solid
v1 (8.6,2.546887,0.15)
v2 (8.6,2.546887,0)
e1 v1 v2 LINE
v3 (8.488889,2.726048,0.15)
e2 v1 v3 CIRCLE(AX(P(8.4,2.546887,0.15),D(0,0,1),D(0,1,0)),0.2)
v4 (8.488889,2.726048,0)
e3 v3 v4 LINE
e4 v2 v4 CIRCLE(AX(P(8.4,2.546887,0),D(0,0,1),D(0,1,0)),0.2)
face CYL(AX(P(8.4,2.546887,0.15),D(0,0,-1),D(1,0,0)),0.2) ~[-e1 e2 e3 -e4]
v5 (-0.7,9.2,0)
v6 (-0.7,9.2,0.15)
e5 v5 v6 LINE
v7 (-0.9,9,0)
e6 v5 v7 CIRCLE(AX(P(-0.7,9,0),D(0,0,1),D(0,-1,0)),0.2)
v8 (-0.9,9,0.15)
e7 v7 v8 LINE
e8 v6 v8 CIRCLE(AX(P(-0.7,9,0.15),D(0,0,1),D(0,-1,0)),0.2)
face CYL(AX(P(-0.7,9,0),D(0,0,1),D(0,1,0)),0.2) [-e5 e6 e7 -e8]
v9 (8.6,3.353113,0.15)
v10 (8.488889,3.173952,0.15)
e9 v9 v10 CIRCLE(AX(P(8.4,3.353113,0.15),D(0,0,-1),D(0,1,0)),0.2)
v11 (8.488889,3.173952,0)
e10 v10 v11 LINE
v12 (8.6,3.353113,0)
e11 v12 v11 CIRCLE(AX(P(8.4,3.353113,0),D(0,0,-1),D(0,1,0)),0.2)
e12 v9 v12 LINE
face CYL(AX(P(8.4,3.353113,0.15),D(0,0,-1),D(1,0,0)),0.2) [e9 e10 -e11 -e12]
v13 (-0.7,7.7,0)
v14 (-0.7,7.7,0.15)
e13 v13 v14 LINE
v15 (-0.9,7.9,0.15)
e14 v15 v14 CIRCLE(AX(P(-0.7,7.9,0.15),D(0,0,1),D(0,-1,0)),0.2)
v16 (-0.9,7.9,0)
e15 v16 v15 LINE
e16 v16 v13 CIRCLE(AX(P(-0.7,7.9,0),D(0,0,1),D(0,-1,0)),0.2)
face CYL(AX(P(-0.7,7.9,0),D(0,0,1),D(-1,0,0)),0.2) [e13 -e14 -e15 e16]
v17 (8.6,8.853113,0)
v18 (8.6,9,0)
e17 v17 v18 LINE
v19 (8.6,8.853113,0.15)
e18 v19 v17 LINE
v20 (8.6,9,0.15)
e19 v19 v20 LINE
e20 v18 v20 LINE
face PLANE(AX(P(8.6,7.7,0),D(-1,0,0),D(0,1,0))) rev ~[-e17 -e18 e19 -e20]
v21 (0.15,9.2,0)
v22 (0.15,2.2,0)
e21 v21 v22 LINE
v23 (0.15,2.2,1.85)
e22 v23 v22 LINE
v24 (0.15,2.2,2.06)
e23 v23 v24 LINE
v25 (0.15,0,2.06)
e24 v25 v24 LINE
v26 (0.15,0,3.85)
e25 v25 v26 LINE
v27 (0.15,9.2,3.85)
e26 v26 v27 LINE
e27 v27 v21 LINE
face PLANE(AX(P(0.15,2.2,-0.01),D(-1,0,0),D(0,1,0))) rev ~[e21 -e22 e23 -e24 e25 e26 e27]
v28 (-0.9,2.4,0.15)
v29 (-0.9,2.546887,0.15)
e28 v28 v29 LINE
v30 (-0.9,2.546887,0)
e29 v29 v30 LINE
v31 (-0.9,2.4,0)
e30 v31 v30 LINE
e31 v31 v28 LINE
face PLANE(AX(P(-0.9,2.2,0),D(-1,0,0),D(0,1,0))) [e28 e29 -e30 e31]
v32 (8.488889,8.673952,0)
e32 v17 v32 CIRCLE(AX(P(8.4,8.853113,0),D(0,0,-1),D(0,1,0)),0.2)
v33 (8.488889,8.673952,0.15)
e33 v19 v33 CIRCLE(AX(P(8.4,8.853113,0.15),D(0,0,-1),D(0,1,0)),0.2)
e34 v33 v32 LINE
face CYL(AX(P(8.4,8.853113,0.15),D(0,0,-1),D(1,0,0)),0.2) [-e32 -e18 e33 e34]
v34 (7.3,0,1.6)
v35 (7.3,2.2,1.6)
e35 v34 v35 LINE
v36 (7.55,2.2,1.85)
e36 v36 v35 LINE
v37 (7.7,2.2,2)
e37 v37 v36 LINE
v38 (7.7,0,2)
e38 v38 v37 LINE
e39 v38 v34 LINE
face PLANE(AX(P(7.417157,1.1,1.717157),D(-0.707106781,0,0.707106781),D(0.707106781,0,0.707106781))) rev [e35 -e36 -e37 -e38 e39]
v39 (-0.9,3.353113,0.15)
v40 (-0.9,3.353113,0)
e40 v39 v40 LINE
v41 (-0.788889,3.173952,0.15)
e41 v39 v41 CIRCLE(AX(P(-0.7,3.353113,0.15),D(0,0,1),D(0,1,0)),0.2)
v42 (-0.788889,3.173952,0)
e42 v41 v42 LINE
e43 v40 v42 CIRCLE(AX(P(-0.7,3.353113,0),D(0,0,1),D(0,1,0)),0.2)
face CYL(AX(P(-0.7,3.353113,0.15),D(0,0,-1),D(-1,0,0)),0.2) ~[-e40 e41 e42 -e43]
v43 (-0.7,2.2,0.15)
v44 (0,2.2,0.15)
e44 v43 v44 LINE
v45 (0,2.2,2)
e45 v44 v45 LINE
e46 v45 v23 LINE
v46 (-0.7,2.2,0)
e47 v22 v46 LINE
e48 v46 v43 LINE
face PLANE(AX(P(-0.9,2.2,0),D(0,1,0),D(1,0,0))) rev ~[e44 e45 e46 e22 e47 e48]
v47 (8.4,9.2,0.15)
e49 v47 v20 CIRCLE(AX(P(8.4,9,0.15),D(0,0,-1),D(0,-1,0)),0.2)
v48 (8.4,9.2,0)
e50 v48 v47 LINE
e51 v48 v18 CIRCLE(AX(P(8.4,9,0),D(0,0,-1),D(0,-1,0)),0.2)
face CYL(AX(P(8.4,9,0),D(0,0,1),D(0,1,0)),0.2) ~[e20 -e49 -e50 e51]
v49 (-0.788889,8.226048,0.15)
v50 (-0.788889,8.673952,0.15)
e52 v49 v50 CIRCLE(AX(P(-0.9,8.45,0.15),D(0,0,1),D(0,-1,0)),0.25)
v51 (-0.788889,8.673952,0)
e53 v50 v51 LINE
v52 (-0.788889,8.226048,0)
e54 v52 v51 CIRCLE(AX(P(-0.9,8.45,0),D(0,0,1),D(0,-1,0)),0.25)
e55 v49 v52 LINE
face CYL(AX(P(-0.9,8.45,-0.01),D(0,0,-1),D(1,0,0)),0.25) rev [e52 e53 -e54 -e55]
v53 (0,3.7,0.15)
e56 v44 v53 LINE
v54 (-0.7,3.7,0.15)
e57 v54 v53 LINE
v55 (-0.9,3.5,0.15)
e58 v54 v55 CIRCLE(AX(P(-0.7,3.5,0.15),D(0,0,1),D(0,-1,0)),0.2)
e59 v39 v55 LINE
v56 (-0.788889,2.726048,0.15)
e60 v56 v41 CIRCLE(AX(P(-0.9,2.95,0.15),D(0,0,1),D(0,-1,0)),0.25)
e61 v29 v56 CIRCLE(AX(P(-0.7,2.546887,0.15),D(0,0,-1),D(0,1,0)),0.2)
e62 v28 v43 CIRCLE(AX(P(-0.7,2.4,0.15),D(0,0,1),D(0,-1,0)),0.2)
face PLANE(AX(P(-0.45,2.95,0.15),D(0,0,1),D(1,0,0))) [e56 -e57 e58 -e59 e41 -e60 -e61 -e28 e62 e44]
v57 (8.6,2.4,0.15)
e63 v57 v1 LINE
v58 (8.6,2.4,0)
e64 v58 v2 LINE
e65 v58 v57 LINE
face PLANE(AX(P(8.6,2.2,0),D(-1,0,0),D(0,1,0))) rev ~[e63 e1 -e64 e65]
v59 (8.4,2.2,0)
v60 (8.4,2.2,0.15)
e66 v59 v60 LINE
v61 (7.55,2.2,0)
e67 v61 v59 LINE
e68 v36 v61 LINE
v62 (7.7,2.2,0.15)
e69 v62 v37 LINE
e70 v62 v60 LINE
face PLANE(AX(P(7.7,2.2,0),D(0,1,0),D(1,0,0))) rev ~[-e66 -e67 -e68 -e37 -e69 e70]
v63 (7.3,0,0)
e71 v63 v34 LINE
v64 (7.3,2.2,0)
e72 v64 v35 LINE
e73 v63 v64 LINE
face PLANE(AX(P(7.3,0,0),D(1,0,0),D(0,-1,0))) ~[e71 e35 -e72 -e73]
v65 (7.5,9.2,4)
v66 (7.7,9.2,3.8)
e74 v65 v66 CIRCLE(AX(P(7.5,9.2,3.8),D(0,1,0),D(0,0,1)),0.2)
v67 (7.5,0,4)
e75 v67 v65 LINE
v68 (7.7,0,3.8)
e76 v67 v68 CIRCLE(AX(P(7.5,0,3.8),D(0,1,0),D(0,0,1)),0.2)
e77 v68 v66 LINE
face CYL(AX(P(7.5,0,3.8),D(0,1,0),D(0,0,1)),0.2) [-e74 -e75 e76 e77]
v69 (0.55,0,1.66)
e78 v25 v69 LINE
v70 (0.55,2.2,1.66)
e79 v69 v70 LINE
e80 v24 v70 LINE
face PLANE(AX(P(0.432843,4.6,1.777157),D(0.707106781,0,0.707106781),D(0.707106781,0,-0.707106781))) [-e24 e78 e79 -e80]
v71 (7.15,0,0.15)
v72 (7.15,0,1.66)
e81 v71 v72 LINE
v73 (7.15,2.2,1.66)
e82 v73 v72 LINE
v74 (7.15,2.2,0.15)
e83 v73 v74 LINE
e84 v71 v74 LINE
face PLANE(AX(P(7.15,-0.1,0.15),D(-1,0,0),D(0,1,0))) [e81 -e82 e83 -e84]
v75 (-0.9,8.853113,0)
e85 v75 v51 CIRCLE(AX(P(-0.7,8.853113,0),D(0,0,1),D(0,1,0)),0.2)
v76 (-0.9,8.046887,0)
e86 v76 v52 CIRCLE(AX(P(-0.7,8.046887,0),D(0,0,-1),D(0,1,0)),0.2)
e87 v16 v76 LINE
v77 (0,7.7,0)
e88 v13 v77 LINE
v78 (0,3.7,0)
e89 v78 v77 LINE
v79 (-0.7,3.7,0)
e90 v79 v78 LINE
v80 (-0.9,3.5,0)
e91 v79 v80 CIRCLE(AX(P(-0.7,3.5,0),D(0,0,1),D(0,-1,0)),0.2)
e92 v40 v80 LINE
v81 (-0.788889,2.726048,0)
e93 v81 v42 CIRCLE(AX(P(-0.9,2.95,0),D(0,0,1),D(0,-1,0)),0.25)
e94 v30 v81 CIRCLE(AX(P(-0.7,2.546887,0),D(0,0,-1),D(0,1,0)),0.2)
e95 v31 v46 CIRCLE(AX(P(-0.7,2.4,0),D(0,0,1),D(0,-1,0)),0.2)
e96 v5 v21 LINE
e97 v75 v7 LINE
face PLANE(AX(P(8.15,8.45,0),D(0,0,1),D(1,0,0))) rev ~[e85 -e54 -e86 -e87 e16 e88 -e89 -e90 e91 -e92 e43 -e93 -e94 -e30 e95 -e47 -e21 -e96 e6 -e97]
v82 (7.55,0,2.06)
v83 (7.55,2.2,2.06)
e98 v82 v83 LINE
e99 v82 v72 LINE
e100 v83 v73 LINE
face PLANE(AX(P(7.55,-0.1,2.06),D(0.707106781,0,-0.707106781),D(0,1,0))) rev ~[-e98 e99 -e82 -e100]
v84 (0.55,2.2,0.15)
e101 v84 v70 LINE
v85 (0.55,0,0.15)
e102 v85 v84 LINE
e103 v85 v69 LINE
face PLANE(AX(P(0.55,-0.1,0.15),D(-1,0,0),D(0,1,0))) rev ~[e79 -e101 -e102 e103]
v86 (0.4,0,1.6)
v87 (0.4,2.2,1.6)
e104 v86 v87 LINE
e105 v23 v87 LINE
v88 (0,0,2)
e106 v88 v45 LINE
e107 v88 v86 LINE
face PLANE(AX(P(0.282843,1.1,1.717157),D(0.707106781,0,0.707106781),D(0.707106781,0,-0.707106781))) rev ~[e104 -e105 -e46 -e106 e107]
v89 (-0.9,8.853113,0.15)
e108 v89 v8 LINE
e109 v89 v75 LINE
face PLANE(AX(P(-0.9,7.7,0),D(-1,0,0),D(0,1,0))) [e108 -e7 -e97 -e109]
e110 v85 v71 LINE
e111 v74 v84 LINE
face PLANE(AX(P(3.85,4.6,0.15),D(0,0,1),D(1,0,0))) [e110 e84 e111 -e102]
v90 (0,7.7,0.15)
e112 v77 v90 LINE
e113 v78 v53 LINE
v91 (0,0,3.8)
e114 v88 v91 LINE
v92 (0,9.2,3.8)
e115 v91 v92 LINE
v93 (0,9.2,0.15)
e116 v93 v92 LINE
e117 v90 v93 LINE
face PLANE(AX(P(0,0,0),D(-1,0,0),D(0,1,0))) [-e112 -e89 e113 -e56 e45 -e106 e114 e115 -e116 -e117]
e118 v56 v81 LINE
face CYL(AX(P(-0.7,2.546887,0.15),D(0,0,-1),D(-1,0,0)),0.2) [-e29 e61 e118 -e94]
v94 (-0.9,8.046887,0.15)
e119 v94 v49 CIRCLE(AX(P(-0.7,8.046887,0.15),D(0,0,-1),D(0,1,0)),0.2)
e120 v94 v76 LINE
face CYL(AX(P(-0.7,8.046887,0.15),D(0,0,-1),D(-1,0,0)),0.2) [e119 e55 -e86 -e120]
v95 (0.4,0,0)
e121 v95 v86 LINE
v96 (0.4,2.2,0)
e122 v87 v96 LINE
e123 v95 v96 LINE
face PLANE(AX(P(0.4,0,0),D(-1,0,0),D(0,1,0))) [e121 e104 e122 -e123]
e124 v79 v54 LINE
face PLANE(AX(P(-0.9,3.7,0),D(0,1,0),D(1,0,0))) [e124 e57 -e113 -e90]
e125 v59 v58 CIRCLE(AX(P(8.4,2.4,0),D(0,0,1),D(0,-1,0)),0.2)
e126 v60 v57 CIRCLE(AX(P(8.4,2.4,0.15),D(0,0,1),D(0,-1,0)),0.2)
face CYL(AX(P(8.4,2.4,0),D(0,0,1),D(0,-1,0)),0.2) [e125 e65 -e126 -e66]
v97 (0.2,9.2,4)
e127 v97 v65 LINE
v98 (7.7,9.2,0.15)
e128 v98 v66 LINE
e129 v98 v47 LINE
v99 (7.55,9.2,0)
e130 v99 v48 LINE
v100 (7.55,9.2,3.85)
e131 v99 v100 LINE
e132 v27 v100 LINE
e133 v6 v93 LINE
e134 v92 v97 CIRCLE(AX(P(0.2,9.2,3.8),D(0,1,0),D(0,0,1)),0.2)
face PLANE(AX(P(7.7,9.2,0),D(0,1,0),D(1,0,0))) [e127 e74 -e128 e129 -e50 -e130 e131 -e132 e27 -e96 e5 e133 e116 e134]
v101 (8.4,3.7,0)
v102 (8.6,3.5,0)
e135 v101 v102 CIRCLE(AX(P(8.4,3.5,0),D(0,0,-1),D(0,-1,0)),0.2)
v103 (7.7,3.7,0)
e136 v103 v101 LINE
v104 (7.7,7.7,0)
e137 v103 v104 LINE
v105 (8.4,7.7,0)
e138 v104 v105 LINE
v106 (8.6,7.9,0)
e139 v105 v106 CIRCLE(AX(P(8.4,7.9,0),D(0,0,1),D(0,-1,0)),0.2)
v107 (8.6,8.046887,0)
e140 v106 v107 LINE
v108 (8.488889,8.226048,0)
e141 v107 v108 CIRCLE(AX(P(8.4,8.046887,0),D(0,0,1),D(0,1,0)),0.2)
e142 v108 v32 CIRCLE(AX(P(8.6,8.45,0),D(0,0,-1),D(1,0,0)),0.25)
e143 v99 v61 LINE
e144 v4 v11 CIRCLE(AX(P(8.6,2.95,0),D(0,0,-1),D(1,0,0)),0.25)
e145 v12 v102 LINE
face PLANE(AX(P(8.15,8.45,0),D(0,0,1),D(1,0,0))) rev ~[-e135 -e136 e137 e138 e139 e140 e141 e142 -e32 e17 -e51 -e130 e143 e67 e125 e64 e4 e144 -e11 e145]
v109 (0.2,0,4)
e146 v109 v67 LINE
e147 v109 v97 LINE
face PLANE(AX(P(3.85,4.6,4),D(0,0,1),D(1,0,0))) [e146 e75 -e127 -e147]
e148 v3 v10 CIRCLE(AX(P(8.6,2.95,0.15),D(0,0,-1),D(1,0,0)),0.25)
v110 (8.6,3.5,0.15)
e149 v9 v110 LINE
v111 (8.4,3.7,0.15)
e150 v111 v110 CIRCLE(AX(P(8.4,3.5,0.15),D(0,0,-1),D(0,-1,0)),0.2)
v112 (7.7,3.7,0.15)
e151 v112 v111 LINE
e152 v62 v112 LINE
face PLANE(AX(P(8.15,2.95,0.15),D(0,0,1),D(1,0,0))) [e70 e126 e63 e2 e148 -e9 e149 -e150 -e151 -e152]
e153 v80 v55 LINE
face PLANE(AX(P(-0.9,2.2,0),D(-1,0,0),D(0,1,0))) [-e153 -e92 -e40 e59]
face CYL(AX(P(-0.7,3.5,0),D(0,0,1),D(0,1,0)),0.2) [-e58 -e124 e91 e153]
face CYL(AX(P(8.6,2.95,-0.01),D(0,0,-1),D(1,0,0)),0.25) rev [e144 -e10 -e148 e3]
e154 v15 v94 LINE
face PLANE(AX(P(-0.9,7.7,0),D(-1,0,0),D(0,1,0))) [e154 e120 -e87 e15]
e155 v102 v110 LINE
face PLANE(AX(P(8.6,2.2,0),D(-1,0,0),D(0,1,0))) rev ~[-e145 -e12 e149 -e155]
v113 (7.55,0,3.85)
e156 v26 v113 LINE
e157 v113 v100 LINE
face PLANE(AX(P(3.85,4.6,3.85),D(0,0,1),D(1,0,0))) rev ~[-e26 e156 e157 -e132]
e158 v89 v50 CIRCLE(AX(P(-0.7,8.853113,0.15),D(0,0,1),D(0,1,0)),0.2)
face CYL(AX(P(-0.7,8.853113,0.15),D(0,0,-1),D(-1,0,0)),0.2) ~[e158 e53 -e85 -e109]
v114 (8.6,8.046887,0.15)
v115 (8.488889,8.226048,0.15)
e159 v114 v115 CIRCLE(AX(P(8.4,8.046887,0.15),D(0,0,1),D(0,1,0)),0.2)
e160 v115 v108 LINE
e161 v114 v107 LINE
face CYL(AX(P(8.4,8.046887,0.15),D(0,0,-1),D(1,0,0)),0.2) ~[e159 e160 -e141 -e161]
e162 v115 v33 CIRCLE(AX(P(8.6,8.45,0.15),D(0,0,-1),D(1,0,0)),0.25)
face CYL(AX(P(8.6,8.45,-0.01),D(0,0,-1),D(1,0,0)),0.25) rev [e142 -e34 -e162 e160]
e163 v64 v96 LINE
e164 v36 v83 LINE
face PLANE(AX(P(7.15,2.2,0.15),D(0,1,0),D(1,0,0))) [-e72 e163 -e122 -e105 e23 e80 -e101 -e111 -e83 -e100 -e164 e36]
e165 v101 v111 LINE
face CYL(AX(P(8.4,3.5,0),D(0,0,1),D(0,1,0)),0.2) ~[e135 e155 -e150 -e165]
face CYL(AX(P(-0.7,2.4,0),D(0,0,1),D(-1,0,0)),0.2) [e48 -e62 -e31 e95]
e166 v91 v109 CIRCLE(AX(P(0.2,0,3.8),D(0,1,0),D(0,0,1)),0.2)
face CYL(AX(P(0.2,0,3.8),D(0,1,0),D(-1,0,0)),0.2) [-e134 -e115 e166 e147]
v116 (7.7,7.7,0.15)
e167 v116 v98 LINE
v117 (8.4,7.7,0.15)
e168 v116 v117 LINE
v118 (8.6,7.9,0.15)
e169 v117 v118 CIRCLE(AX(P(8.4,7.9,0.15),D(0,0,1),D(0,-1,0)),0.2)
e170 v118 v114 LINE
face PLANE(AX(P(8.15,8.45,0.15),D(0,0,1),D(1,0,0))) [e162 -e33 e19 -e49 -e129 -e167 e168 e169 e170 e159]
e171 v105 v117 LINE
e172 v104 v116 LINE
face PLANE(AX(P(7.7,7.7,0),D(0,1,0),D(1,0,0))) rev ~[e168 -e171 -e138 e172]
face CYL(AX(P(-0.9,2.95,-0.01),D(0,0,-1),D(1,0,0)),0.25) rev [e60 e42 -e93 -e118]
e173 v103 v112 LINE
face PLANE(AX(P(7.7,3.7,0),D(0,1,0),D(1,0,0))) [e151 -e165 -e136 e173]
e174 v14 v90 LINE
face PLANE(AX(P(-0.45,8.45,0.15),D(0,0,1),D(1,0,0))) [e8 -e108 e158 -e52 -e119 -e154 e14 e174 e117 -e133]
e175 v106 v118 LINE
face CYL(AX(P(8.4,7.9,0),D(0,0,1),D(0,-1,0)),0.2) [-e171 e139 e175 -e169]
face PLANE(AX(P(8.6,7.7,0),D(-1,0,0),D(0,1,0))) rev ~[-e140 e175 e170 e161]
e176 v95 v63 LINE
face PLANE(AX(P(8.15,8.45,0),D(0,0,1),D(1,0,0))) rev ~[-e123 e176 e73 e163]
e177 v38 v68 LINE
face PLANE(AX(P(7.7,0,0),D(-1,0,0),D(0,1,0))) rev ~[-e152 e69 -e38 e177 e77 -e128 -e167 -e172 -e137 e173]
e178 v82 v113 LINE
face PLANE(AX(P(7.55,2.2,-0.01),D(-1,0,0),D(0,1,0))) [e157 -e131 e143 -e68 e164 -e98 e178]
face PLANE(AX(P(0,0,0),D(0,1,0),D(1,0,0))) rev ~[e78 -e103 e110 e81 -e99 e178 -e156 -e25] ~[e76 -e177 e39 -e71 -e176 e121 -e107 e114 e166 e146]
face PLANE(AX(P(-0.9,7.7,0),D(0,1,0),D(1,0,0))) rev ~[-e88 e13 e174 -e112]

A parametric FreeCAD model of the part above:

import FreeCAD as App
import Part
import Sketcher


def edges_at(feature, points):
    """Names of the edges that pass closest to the given points."""
    edges = feature.Shape.Edges
    near = lambda p: min(range(len(edges)), key=lambda i: edges[i].distToShape(Part.Vertex(*p))[0])
    return sorted({f"Edge{near(p) + 1}" for p in points})

doc = App.newDocument("Part")
params = doc.addObject("Spreadsheet::Sheet", "Params")
for row, (alias, value) in enumerate([
    ("sketch1_height", "7 mm"),
    ("sketch1_width", "7.4 mm"),
    ("pad1_length", "0.2 mm"),
    ("sketch2_width", "0.8 mm"),
    ("sketch2_height", "9.4 mm"),
    ("pad2_length", "0.8 mm"),
    ("sketch3_width", "0.4 mm"),
    ("sketch3_height", "2.3 mm"),
    ("pad3_length", "1.91 mm"),
    ("sketch4_width", "0.8 mm"),
    ("sketch4_height", "9.4 mm"),
    ("pad4_length", "0.8 mm"),
    ("sketch5_width", "0.4 mm"),
    ("sketch5_height", "2.3 mm"),
    ("pad5_length", "1.91 mm"),
    ("sketch6_width", "7.4 mm"),
    ("sketch6_height", "9.4 mm"),
    ("pad6_length", "3.7 mm"),
    ("sketch7_diameter", "0.5 mm"),
    ("pad7_length", "0.17 mm"),
    ("sketch8_width", "0.9 mm"),
    ("sketch8_height", "1.5 mm"),
    ("pad8_length", "0.15 mm"),
    ("fillet_radius", "0.2 mm"),
    ("sketch9_diameter", "0.5 mm"),
    ("pad9_length", "0.17 mm"),
    ("sketch10_width", "0.9 mm"),
    ("sketch10_height", "1.5 mm"),
    ("pad10_length", "0.15 mm"),
    ("fillet2_radius", "0.2 mm"),
    ("sketch11_diameter", "0.5 mm"),
    ("pad11_length", "0.17 mm"),
    ("sketch12_width", "0.9 mm"),
    ("sketch12_height", "1.5 mm"),
    ("pad12_length", "0.15 mm"),
    ("fillet3_radius", "0.2 mm"),
    ("sketch13_diameter", "0.5 mm"),
    ("pad13_length", "0.17 mm"),
    ("sketch14_width", "0.9 mm"),
    ("sketch14_height", "1.5 mm"),
    ("pad14_length", "0.15 mm"),
    ("fillet4_radius", "0.2 mm"),
    ("sketch15_width", "0.8 mm"),
    ("sketch15_height", "2.2 mm"),
    ("pad15_length", "0.8 mm"),
    ("sketch16_width", "0.4 mm"),
    ("sketch16_height", "2.2 mm"),
    ("pad16_length", "2 mm"),
    ("sketch17_width", "0.8 mm"),
    ("sketch17_height", "2.2 mm"),
    ("pad17_length", "0.8 mm"),
    ("sketch18_width", "0.4 mm"),
    ("sketch18_height", "2.2 mm"),
    ("pad18_length", "2 mm"),
    ("sketch19_width", "7.7 mm"),
    ("sketch19_height", "9.2 mm"),
    ("pad19_length", "4 mm"),
    ("fillet5_radius", "0.2 mm"),
], start=1):
    params.set(f"A{row}", alias)
    params.set(f"B{row}", "=" + value)
    params.setAlias(f"B{row}", alias)

body = doc.addObject("PartDesign::Body", "Body")

# Sketch on XY plane
sketch1 = body.newObject("Sketcher::SketchObject", "Sketch")
sketch1.AttachmentSupport = (doc.getObject("XY_Plane"), [""])
sketch1.MapMode = "FlatFace"
sketch1.AttachmentOffset = App.Placement(App.Vector(0, 0, -0.01), App.Rotation())
sketch1.addGeometry([
    Part.LineSegment(App.Vector(0, 9, 0), App.Vector(0, 2, 0)),
    Part.LineSegment(App.Vector(0, 2, 0), App.Vector(8, 2, 0)),
    Part.LineSegment(App.Vector(8, 2, 0), App.Vector(8, 9, 0)),
    Part.LineSegment(App.Vector(8, 9, 0), App.Vector(0, 9, 0)),
], False)
sketch1.addConstraint([
    Sketcher.Constraint("Coincident", 0, 2, 1, 1),
    Sketcher.Constraint("Coincident", 1, 2, 2, 1),
    Sketcher.Constraint("Coincident", 2, 2, 3, 1),
    Sketcher.Constraint("Coincident", 3, 2, 0, 1),
    Sketcher.Constraint("Vertical", 0),
    Sketcher.Constraint("Horizontal", 1),
    Sketcher.Constraint("Vertical", 2),
    Sketcher.Constraint("Horizontal", 3),
    Sketcher.Constraint("DistanceY", 0, 2, 0, 1, 7.0),
    Sketcher.Constraint("DistanceX", 1, 1, 1, 2, 7.4),
    Sketcher.Constraint("DistanceY", -1, 1, 0, 2, 2.2),
    Sketcher.Constraint("DistanceX", -1, 1, 0, 2, 0.15),
])
sketch1.setExpression("Constraints[8]", "Params.sketch1_height")
sketch1.setExpression("Constraints[9]", "Params.sketch1_width")
pad1 = body.newObject("PartDesign::Pad", "Pad")
pad1.Profile = sketch1
pad1.setExpression("Length", "Params.pad1_length")
body2 = doc.addObject("PartDesign::Body", "Body001")

# Sketch on XY plane
sketch2 = body2.newObject("Sketcher::SketchObject", "Sketch001")
sketch2.AttachmentSupport = (doc.getObject("XY_Plane001"), [""])
sketch2.MapMode = "FlatFace"
sketch2.addGeometry([
    Part.LineSegment(App.Vector(0, 9.4, 0), App.Vector(0, 0, 0)),
    Part.LineSegment(App.Vector(0, 0, 0), App.Vector(0.8, 0, 0)),
    Part.LineSegment(App.Vector(0.8, 0, 0), App.Vector(0.8, 9.4, 0)),
    Part.LineSegment(App.Vector(0.8, 9.4, 0), App.Vector(0, 9.4, 0)),
], False)
sketch2.addConstraint([
    Sketcher.Constraint("Coincident", 0, 2, 1, 1),
    Sketcher.Constraint("Coincident", 1, 2, 2, 1),
    Sketcher.Constraint("Coincident", 2, 2, 3, 1),
    Sketcher.Constraint("Coincident", 3, 2, 0, 1),
    Sketcher.Constraint("Vertical", 0),
    Sketcher.Constraint("Horizontal", 1),
    Sketcher.Constraint("Vertical", 2),
    Sketcher.Constraint("Horizontal", 3),
    Sketcher.Constraint("Coincident", 0, 2, -1, 1),
    Sketcher.Constraint("DistanceX", 1, 1, 1, 2, 0.8),
    Sketcher.Constraint("DistanceY", 0, 2, 0, 1, 9.4),
])
sketch2.setExpression("Constraints[9]", "Params.sketch2_width")
sketch2.setExpression("Constraints[10]", "Params.sketch2_height")
pad2 = body2.newObject("PartDesign::Pad", "Pad001")
pad2.Profile = sketch2
pad2.setExpression("Length", "Params.pad2_length")
body3 = doc.addObject("PartDesign::Body", "Body002")
doc.recompute()

body2.Placement = App.Placement(App.Vector(7.4, -0.1, 2.06), App.Rotation(App.Vector(0, 1, 0), 225))
boolean = body3.newObject("PartDesign::Boolean", "Boolean")
boolean.Type = "Fuse"
boolean.addObjects([body2])
body4 = doc.addObject("PartDesign::Body", "Body003")

# Sketch on XY plane
sketch3 = body4.newObject("Sketcher::SketchObject", "Sketch002")
sketch3.AttachmentSupport = (doc.getObject("XY_Plane003"), [""])
sketch3.MapMode = "FlatFace"
sketch3.AttachmentOffset = App.Placement(App.Vector(0, 0, 0.15), App.Rotation())
sketch3.addGeometry([
    Part.LineSegment(App.Vector(7, 2.2, 0), App.Vector(7, -0.1, 0)),
    Part.LineSegment(App.Vector(7, -0.1, 0), App.Vector(7.4, -0.1, 0)),
    Part.LineSegment(App.Vector(7.4, -0.1, 0), App.Vector(7.4, 2.2, 0)),
    Part.LineSegment(App.Vector(7.4, 2.2, 0), App.Vector(7, 2.2, 0)),
], False)
sketch3.addConstraint([
    Sketcher.Constraint("Coincident", 0, 2, 1, 1),
    Sketcher.Constraint("Coincident", 1, 2, 2, 1),
    Sketcher.Constraint("Coincident", 2, 2, 3, 1),
    Sketcher.Constraint("Coincident", 3, 2, 0, 1),
    Sketcher.Constraint("Vertical", 0),
    Sketcher.Constraint("Horizontal", 1),
    Sketcher.Constraint("Vertical", 2),
    Sketcher.Constraint("Horizontal", 3),
    Sketcher.Constraint("DistanceX", 1, 1, 1, 2, 0.4),
    Sketcher.Constraint("DistanceY", 0, 2, 0, 1, 2.3),
    Sketcher.Constraint("DistanceX", -1, 1, 0, 2, 7.0),
    Sketcher.Constraint("DistanceY", 0, 2, -1, 1, 0.1),
])
sketch3.setExpression("Constraints[8]", "Params.sketch3_width")
sketch3.setExpression("Constraints[9]", "Params.sketch3_height")
pad3 = body4.newObject("PartDesign::Pad", "Pad002")
pad3.Profile = sketch3
pad3.setExpression("Length", "Params.pad3_length")
doc.recompute()

boolean2 = body4.newObject("PartDesign::Boolean", "Boolean001")
boolean2.Type = "Cut"
boolean2.addObjects([body3])
body5 = doc.addObject("PartDesign::Body", "Body004")
doc.recompute()

body4.Placement = App.Placement(App.Vector(0.15, 0, 0), App.Rotation(App.Vector(0, 0, 1), 0))
boolean3 = body5.newObject("PartDesign::Boolean", "Boolean002")
boolean3.Type = "Fuse"
boolean3.addObjects([body4])
body6 = doc.addObject("PartDesign::Body", "Body005")

# Sketch on XY plane
sketch4 = body6.newObject("Sketcher::SketchObject", "Sketch003")
sketch4.AttachmentSupport = (doc.getObject("XY_Plane005"), [""])
sketch4.MapMode = "FlatFace"
sketch4.addGeometry([
    Part.LineSegment(App.Vector(0, 9.4, 0), App.Vector(0, 0, 0)),
    Part.LineSegment(App.Vector(0, 0, 0), App.Vector(0.8, 0, 0)),
    Part.LineSegment(App.Vector(0.8, 0, 0), App.Vector(0.8, 9.4, 0)),
    Part.LineSegment(App.Vector(0.8, 9.4, 0), App.Vector(0, 9.4, 0)),
], False)
sketch4.addConstraint([
    Sketcher.Constraint("Coincident", 0, 2, 1, 1),
    Sketcher.Constraint("Coincident", 1, 2, 2, 1),
    Sketcher.Constraint("Coincident", 2, 2, 3, 1),
    Sketcher.Constraint("Coincident", 3, 2, 0, 1),
    Sketcher.Constraint("Vertical", 0),
    Sketcher.Constraint("Horizontal", 1),
    Sketcher.Constraint("Vertical", 2),
    Sketcher.Constraint("Horizontal", 3),
    Sketcher.Constraint("Coincident", 0, 2, -1, 1),
    Sketcher.Constraint("DistanceX", 1, 1, 1, 2, 0.8),
    Sketcher.Constraint("DistanceY", 0, 2, 0, 1, 9.4),
])
sketch4.setExpression("Constraints[9]", "Params.sketch4_width")
sketch4.setExpression("Constraints[10]", "Params.sketch4_height")
pad4 = body6.newObject("PartDesign::Pad", "Pad003")
pad4.Profile = sketch4
pad4.setExpression("Length", "Params.pad4_length")
body7 = doc.addObject("PartDesign::Body", "Body006")
doc.recompute()

body6.Placement = App.Placement(App.Vector(0.15, -0.1, 2.06), App.Rotation(App.Vector(0, 1, 0), 45))
boolean4 = body7.newObject("PartDesign::Boolean", "Boolean003")
boolean4.Type = "Fuse"
boolean4.addObjects([body6])
body8 = doc.addObject("PartDesign::Body", "Body007")

# Sketch on XY plane
sketch5 = body8.newObject("Sketcher::SketchObject", "Sketch004")
sketch5.AttachmentSupport = (doc.getObject("XY_Plane007"), [""])
sketch5.MapMode = "FlatFace"
sketch5.AttachmentOffset = App.Placement(App.Vector(0, 0, 0.15), App.Rotation())
sketch5.addGeometry([
    Part.LineSegment(App.Vector(0.15, 2.2, 0), App.Vector(0.15, -0.1, 0)),
    Part.LineSegment(App.Vector(0.15, -0.1, 0), App.Vector(0.55, -0.1, 0)),
    Part.LineSegment(App.Vector(0.55, -0.1, 0), App.Vector(0.55, 2.2, 0)),
    Part.LineSegment(App.Vector(0.55, 2.2, 0), App.Vector(0.15, 2.2, 0)),
], False)
sketch5.addConstraint([
    Sketcher.Constraint("Coincident", 0, 2, 1, 1),
    Sketcher.Constraint("Coincident", 1, 2, 2, 1),
    Sketcher.Constraint("Coincident", 2, 2, 3, 1),
    Sketcher.Constraint("Coincident", 3, 2, 0, 1),
    Sketcher.Constraint("Vertical", 0),
    Sketcher.Constraint("Horizontal", 1),
    Sketcher.Constraint("Vertical", 2),
    Sketcher.Constraint("Horizontal", 3),
    Sketcher.Constraint("DistanceX", 1, 1, 1, 2, 0.4),
    Sketcher.Constraint("DistanceY", 0, 2, 0, 1, 2.3),
    Sketcher.Constraint("DistanceY", 0, 2, -1, 1, 0.1),
    Sketcher.Constraint("DistanceX", -1, 1, 0, 2, 0.15),
])
sketch5.setExpression("Constraints[8]", "Params.sketch5_width")
sketch5.setExpression("Constraints[9]", "Params.sketch5_height")
pad5 = body8.newObject("PartDesign::Pad", "Pad004")
pad5.Profile = sketch5
pad5.setExpression("Length", "Params.pad5_length")
doc.recompute()

boolean5 = body8.newObject("PartDesign::Boolean", "Boolean004")
boolean5.Type = "Cut"
boolean5.addObjects([body7])
body9 = doc.addObject("PartDesign::Body", "Body008")

# Sketch on XY plane
sketch6 = body9.newObject("Sketcher::SketchObject", "Sketch005")
sketch6.AttachmentSupport = (doc.getObject("XY_Plane008"), [""])
sketch6.MapMode = "FlatFace"
sketch6.AttachmentOffset = App.Placement(App.Vector(0, 0, 0.15), App.Rotation())
sketch6.addGeometry([
    Part.LineSegment(App.Vector(0, 9, 0), App.Vector(0, 0, 0)),
    Part.LineSegment(App.Vector(0, 0, 0), App.Vector(8, 0, 0)),
    Part.LineSegment(App.Vector(8, 0, 0), App.Vector(8, 9, 0)),
    Part.LineSegment(App.Vector(8, 9, 0), App.Vector(0, 9, 0)),
], False)
sketch6.addConstraint([
    Sketcher.Constraint("Coincident", 0, 2, 1, 1),
    Sketcher.Constraint("Coincident", 1, 2, 2, 1),
    Sketcher.Constraint("Coincident", 2, 2, 3, 1),
    Sketcher.Constraint("Coincident", 3, 2, 0, 1),
    Sketcher.Constraint("Vertical", 0),
    Sketcher.Constraint("Horizontal", 1),
    Sketcher.Constraint("Vertical", 2),
    Sketcher.Constraint("Horizontal", 3),
    Sketcher.Constraint("DistanceX", 1, 1, 1, 2, 7.4),
    Sketcher.Constraint("DistanceY", 0, 2, 0, 1, 9.4),
    Sketcher.Constraint("DistanceY", 0, 2, -1, 1, 0.1),
    Sketcher.Constraint("DistanceX", -1, 1, 0, 2, 0.15),
])
sketch6.setExpression("Constraints[8]", "Params.sketch6_width")
sketch6.setExpression("Constraints[9]", "Params.sketch6_height")
pad6 = body9.newObject("PartDesign::Pad", "Pad005")
pad6.Profile = sketch6
pad6.setExpression("Length", "Params.pad6_length")
doc.recompute()

boolean6 = body9.newObject("PartDesign::Boolean", "Boolean005")
boolean6.Type = "Cut"
boolean6.addObjects([body8])
doc.recompute()

boolean7 = body9.newObject("PartDesign::Boolean", "Boolean006")
boolean7.Type = "Cut"
boolean7.addObjects([body5])
body10 = doc.addObject("PartDesign::Body", "Body009")

# Sketch on XY plane
sketch7 = body10.newObject("Sketcher::SketchObject", "Sketch006")
sketch7.AttachmentSupport = (doc.getObject("XY_Plane009"), [""])
sketch7.MapMode = "FlatFace"
sketch7.AttachmentOffset = App.Placement(App.Vector(0, 0, -0.01), App.Rotation())
sketch7.addGeometry(Part.Circle(App.Vector(-0.9, 2.95, 0), App.Vector(0, 0, 1), 0.25), False)
sketch7.addConstraint([
    Sketcher.Constraint("Diameter", 0, 0.5),
    Sketcher.Constraint("DistanceX", 0, 3, -1, 1, 0.9),
    Sketcher.Constraint("DistanceY", -1, 1, 0, 3, 2.95),
])
sketch7.setExpression("Constraints[0]", "Params.sketch7_diameter")
pad7 = body10.newObject("PartDesign::Pad", "Pad006")
pad7.Profile = sketch7
pad7.setExpression("Length", "Params.pad7_length")
body11 = doc.addObject("PartDesign::Body", "Body010")

# Sketch on XY plane
sketch8 = body11.newObject("Sketcher::SketchObject", "Sketch007")
sketch8.AttachmentSupport = (doc.getObject("XY_Plane010"), [""])
sketch8.MapMode = "FlatFace"
sketch8.addGeometry([
    Part.LineSegment(App.Vector(-0.9, 3.7, 0), App.Vector(-0.9, 2.2, 0)),
    Part.LineSegment(App.Vector(-0.9, 2.2, 0), App.Vector(0, 2.2, 0)),
    Part.LineSegment(App.Vector(0, 2.2, 0), App.Vector(0, 3.7, 0)),
    Part.LineSegment(App.Vector(0, 3.7, 0), App.Vector(-0.9, 3.7, 0)),
], False)
sketch8.addConstraint([
    Sketcher.Constraint("Coincident", 0, 2, 1, 1),
    Sketcher.Constraint("Coincident", 1, 2, 2, 1),
    Sketcher.Constraint("Coincident", 2, 2, 3, 1),
    Sketcher.Constraint("Coincident", 3, 2, 0, 1),
    Sketcher.Constraint("Vertical", 0),
    Sketcher.Constraint("Horizontal", 1),
    Sketcher.Constraint("Vertical", 2),
    Sketcher.Constraint("Horizontal", 3),
    Sketcher.Constraint("PointOnObject", 1, 2, -2),
    Sketcher.Constraint("DistanceX", 1, 1, 1, 2, 0.9),
    Sketcher.Constraint("DistanceY", 0, 2, 0, 1, 1.5),
    Sketcher.Constraint("DistanceY", -1, 1, 0, 2, 2.2),
])
sketch8.setExpression("Constraints[9]", "Params.sketch8_width")
sketch8.setExpression("Constraints[10]", "Params.sketch8_height")
pad8 = body11.newObject("PartDesign::Pad", "Pad007")
pad8.Profile = sketch8
pad8.setExpression("Length", "Params.pad8_length")
doc.recompute()

boolean8 = body11.newObject("PartDesign::Boolean", "Boolean007")
boolean8.Type = "Cut"
boolean8.addObjects([body10])
doc.recompute()

fillet = body11.newObject("PartDesign::Fillet", "Fillet")
fillet.Base = (boolean8, edges_at(boolean8, [
    (-0.9, 2.7, 0.075),
    (-0.9, 2.2, 0.075),
    (-0.9, 3.2, 0.075),
    (-0.9, 3.7, 0.075),
]))
fillet.setExpression("Radius", "Params.fillet_radius")
body12 = doc.addObject("PartDesign::Body", "Body011")

# Sketch on XY plane
sketch9 = body12.newObject("Sketcher::SketchObject", "Sketch008")
sketch9.AttachmentSupport = (doc.getObject("XY_Plane011"), [""])
sketch9.MapMode = "FlatFace"
sketch9.AttachmentOffset = App.Placement(App.Vector(0, 0, -0.01), App.Rotation())
sketch9.addGeometry(Part.Circle(App.Vector(-0.9, 8.45, 0), App.Vector(0, 0, 1), 0.25), False)
sketch9.addConstraint([
    Sketcher.Constraint("Diameter", 0, 0.5),
    Sketcher.Constraint("DistanceX", 0, 3, -1, 1, 0.9),
    Sketcher.Constraint("DistanceY", -1, 1, 0, 3, 8.45),
])
sketch9.setExpression("Constraints[0]", "Params.sketch9_diameter")
pad9 = body12.newObject("PartDesign::Pad", "Pad008")
pad9.Profile = sketch9
pad9.setExpression("Length", "Params.pad9_length")
body13 = doc.addObject("PartDesign::Body", "Body012")

# Sketch on XY plane
sketch10 = body13.newObject("Sketcher::SketchObject", "Sketch009")
sketch10.AttachmentSupport = (doc.getObject("XY_Plane012"), [""])
sketch10.MapMode = "FlatFace"
sketch10.addGeometry([
    Part.LineSegment(App.Vector(-0.9, 9.2, 0), App.Vector(-0.9, 7.7, 0)),
    Part.LineSegment(App.Vector(-0.9, 7.7, 0), App.Vector(0, 7.7, 0)),
    Part.LineSegment(App.Vector(0, 7.7, 0), App.Vector(0, 9.2, 0)),
    Part.LineSegment(App.Vector(0, 9.2, 0), App.Vector(-0.9, 9.2, 0)),
], False)
sketch10.addConstraint([
    Sketcher.Constraint("Coincident", 0, 2, 1, 1),
    Sketcher.Constraint("Coincident", 1, 2, 2, 1),
    Sketcher.Constraint("Coincident", 2, 2, 3, 1),
    Sketcher.Constraint("Coincident", 3, 2, 0, 1),
    Sketcher.Constraint("Vertical", 0),
    Sketcher.Constraint("Horizontal", 1),
    Sketcher.Constraint("Vertical", 2),
    Sketcher.Constraint("Horizontal", 3),
    Sketcher.Constraint("PointOnObject", 1, 2, -2),
    Sketcher.Constraint("DistanceX", 1, 1, 1, 2, 0.9),
    Sketcher.Constraint("DistanceY", 0, 2, 0, 1, 1.5),
    Sketcher.Constraint("DistanceY", -1, 1, 0, 2, 7.7),
])
sketch10.setExpression("Constraints[9]", "Params.sketch10_width")
sketch10.setExpression("Constraints[10]", "Params.sketch10_height")
pad10 = body13.newObject("PartDesign::Pad", "Pad009")
pad10.Profile = sketch10
pad10.setExpression("Length", "Params.pad10_length")
doc.recompute()

boolean9 = body13.newObject("PartDesign::Boolean", "Boolean008")
boolean9.Type = "Cut"
boolean9.addObjects([body12])
doc.recompute()

fillet2 = body13.newObject("PartDesign::Fillet", "Fillet001")
fillet2.Base = (boolean9, edges_at(boolean9, [
    (-0.9, 8.2, 0.075),
    (-0.9, 7.7, 0.075),
    (-0.9, 8.7, 0.075),
    (-0.9, 9.2, 0.075),
]))
fillet2.setExpression("Radius", "Params.fillet2_radius")
body14 = doc.addObject("PartDesign::Body", "Body013")

# Sketch on XY plane
sketch11 = body14.newObject("Sketcher::SketchObject", "Sketch010")
sketch11.AttachmentSupport = (doc.getObject("XY_Plane013"), [""])
sketch11.MapMode = "FlatFace"
sketch11.AttachmentOffset = App.Placement(App.Vector(0, 0, -0.01), App.Rotation())
sketch11.addGeometry(Part.Circle(App.Vector(8.6, 2.95, 0), App.Vector(0, 0, 1), 0.25), False)
sketch11.addConstraint([
    Sketcher.Constraint("Diameter", 0, 0.5),
    Sketcher.Constraint("DistanceX", -1, 1, 0, 3, 8.6),
    Sketcher.Constraint("DistanceY", -1, 1, 0, 3, 2.95),
])
sketch11.setExpression("Constraints[0]", "Params.sketch11_diameter")
pad11 = body14.newObject("PartDesign::Pad", "Pad010")
pad11.Profile = sketch11
pad11.setExpression("Length", "Params.pad11_length")
body15 = doc.addObject("PartDesign::Body", "Body014")

# Sketch on XY plane
sketch12 = body15.newObject("Sketcher::SketchObject", "Sketch011")
sketch12.AttachmentSupport = (doc.getObject("XY_Plane014"), [""])
sketch12.MapMode = "FlatFace"
sketch12.addGeometry([
    Part.LineSegment(App.Vector(7.7, 3.7, 0), App.Vector(7.7, 2.2, 0)),
    Part.LineSegment(App.Vector(7.7, 2.2, 0), App.Vector(8.6, 2.2, 0)),
    Part.LineSegment(App.Vector(8.6, 2.2, 0), App.Vector(8.6, 3.7, 0)),
    Part.LineSegment(App.Vector(8.6, 3.7, 0), App.Vector(7.7, 3.7, 0)),
], False)
sketch12.addConstraint([
    Sketcher.Constraint("Coincident", 0, 2, 1, 1),
    Sketcher.Constraint("Coincident", 1, 2, 2, 1),
    Sketcher.Constraint("Coincident", 2, 2, 3, 1),
    Sketcher.Constraint("Coincident", 3, 2, 0, 1),
    Sketcher.Constraint("Vertical", 0),
    Sketcher.Constraint("Horizontal", 1),
    Sketcher.Constraint("Vertical", 2),
    Sketcher.Constraint("Horizontal", 3),
    Sketcher.Constraint("DistanceX", 1, 1, 1, 2, 0.9),
    Sketcher.Constraint("DistanceY", 0, 2, 0, 1, 1.5),
    Sketcher.Constraint("DistanceX", -1, 1, 0, 2, 7.7),
    Sketcher.Constraint("DistanceY", -1, 1, 0, 2, 2.2),
])
sketch12.setExpression("Constraints[8]", "Params.sketch12_width")
sketch12.setExpression("Constraints[9]", "Params.sketch12_height")
pad12 = body15.newObject("PartDesign::Pad", "Pad011")
pad12.Profile = sketch12
pad12.setExpression("Length", "Params.pad12_length")
doc.recompute()

boolean10 = body15.newObject("PartDesign::Boolean", "Boolean009")
boolean10.Type = "Cut"
boolean10.addObjects([body14])
doc.recompute()

fillet3 = body15.newObject("PartDesign::Fillet", "Fillet002")
fillet3.Base = (boolean10, edges_at(boolean10, [
    (8.6, 2.2, 0.075),
    (8.6, 3.7, 0.075),
    (8.6, 2.7, 0.075),
    (8.6, 3.2, 0.075),
]))
fillet3.setExpression("Radius", "Params.fillet3_radius")
body16 = doc.addObject("PartDesign::Body", "Body015")

# Sketch on XY plane
sketch13 = body16.newObject("Sketcher::SketchObject", "Sketch012")
sketch13.AttachmentSupport = (doc.getObject("XY_Plane015"), [""])
sketch13.MapMode = "FlatFace"
sketch13.AttachmentOffset = App.Placement(App.Vector(0, 0, -0.01), App.Rotation())
sketch13.addGeometry(Part.Circle(App.Vector(8.6, 8.45, 0), App.Vector(0, 0, 1), 0.25), False)
sketch13.addConstraint([
    Sketcher.Constraint("Diameter", 0, 0.5),
    Sketcher.Constraint("DistanceX", -1, 1, 0, 3, 8.6),
    Sketcher.Constraint("DistanceY", -1, 1, 0, 3, 8.45),
])
sketch13.setExpression("Constraints[0]", "Params.sketch13_diameter")
pad13 = body16.newObject("PartDesign::Pad", "Pad012")
pad13.Profile = sketch13
pad13.setExpression("Length", "Params.pad13_length")
body17 = doc.addObject("PartDesign::Body", "Body016")

# Sketch on XY plane
sketch14 = body17.newObject("Sketcher::SketchObject", "Sketch013")
sketch14.AttachmentSupport = (doc.getObject("XY_Plane016"), [""])
sketch14.MapMode = "FlatFace"
sketch14.addGeometry([
    Part.LineSegment(App.Vector(7.7, 9.2, 0), App.Vector(7.7, 7.7, 0)),
    Part.LineSegment(App.Vector(7.7, 7.7, 0), App.Vector(8.6, 7.7, 0)),
    Part.LineSegment(App.Vector(8.6, 7.7, 0), App.Vector(8.6, 9.2, 0)),
    Part.LineSegment(App.Vector(8.6, 9.2, 0), App.Vector(7.7, 9.2, 0)),
], False)
sketch14.addConstraint([
    Sketcher.Constraint("Coincident", 0, 2, 1, 1),
    Sketcher.Constraint("Coincident", 1, 2, 2, 1),
    Sketcher.Constraint("Coincident", 2, 2, 3, 1),
    Sketcher.Constraint("Coincident", 3, 2, 0, 1),
    Sketcher.Constraint("Vertical", 0),
    Sketcher.Constraint("Horizontal", 1),
    Sketcher.Constraint("Vertical", 2),
    Sketcher.Constraint("Horizontal", 3),
    Sketcher.Constraint("DistanceX", 1, 1, 1, 2, 0.9),
    Sketcher.Constraint("DistanceY", 0, 2, 0, 1, 1.5),
    Sketcher.Constraint("DistanceX", -1, 1, 0, 2, 7.7),
    Sketcher.Constraint("DistanceY", -1, 1, 0, 2, 7.7),
])
sketch14.setExpression("Constraints[8]", "Params.sketch14_width")
sketch14.setExpression("Constraints[9]", "Params.sketch14_height")
pad14 = body17.newObject("PartDesign::Pad", "Pad013")
pad14.Profile = sketch14
pad14.setExpression("Length", "Params.pad14_length")
doc.recompute()

boolean11 = body17.newObject("PartDesign::Boolean", "Boolean010")
boolean11.Type = "Cut"
boolean11.addObjects([body16])
doc.recompute()

fillet4 = body17.newObject("PartDesign::Fillet", "Fillet003")
fillet4.Base = (boolean11, edges_at(boolean11, [
    (8.6, 7.7, 0.075),
    (8.6, 9.2, 0.075),
    (8.6, 8.2, 0.075),
    (8.6, 8.7, 0.075),
]))
fillet4.setExpression("Radius", "Params.fillet4_radius")
body18 = doc.addObject("PartDesign::Body", "Body017")

# Sketch on XY plane
sketch15 = body18.newObject("Sketcher::SketchObject", "Sketch014")
sketch15.AttachmentSupport = (doc.getObject("XY_Plane017"), [""])
sketch15.MapMode = "FlatFace"
sketch15.addGeometry([
    Part.LineSegment(App.Vector(0, 2.2, 0), App.Vector(0, 0, 0)),
    Part.LineSegment(App.Vector(0, 0, 0), App.Vector(0.8, 0, 0)),
    Part.LineSegment(App.Vector(0.8, 0, 0), App.Vector(0.8, 2.2, 0)),
    Part.LineSegment(App.Vector(0.8, 2.2, 0), App.Vector(0, 2.2, 0)),
], False)
sketch15.addConstraint([
    Sketcher.Constraint("Coincident", 0, 2, 1, 1),
    Sketcher.Constraint("Coincident", 1, 2, 2, 1),
    Sketcher.Constraint("Coincident", 2, 2, 3, 1),
    Sketcher.Constraint("Coincident", 3, 2, 0, 1),
    Sketcher.Constraint("Vertical", 0),
    Sketcher.Constraint("Horizontal", 1),
    Sketcher.Constraint("Vertical", 2),
    Sketcher.Constraint("Horizontal", 3),
    Sketcher.Constraint("Coincident", 0, 2, -1, 1),
    Sketcher.Constraint("DistanceX", 1, 1, 1, 2, 0.8),
    Sketcher.Constraint("DistanceY", 0, 2, 0, 1, 2.2),
])
sketch15.setExpression("Constraints[9]", "Params.sketch15_width")
sketch15.setExpression("Constraints[10]", "Params.sketch15_height")
pad15 = body18.newObject("PartDesign::Pad", "Pad014")
pad15.Profile = sketch15
pad15.setExpression("Length", "Params.pad15_length")
body19 = doc.addObject("PartDesign::Body", "Body018")
doc.recompute()

body18.Placement = App.Placement(App.Vector(0, 0, 2), App.Rotation(App.Vector(0, 1, 0), 45))
boolean12 = body19.newObject("PartDesign::Boolean", "Boolean011")
boolean12.Type = "Fuse"
boolean12.addObjects([body18])
body20 = doc.addObject("PartDesign::Body", "Body019")

# Sketch on XY plane
sketch16 = body20.newObject("Sketcher::SketchObject", "Sketch015")
sketch16.AttachmentSupport = (doc.getObject("XY_Plane019"), [""])
sketch16.MapMode = "FlatFace"
sketch16.addGeometry([
    Part.LineSegment(App.Vector(0, 2.2, 0), App.Vector(0, 0, 0)),
    Part.LineSegment(App.Vector(0, 0, 0), App.Vector(0.4, 0, 0)),
    Part.LineSegment(App.Vector(0.4, 0, 0), App.Vector(0.4, 2.2, 0)),
    Part.LineSegment(App.Vector(0.4, 2.2, 0), App.Vector(0, 2.2, 0)),
], False)
sketch16.addConstraint([
    Sketcher.Constraint("Coincident", 0, 2, 1, 1),
    Sketcher.Constraint("Coincident", 1, 2, 2, 1),
    Sketcher.Constraint("Coincident", 2, 2, 3, 1),
    Sketcher.Constraint("Coincident", 3, 2, 0, 1),
    Sketcher.Constraint("Vertical", 0),
    Sketcher.Constraint("Horizontal", 1),
    Sketcher.Constraint("Vertical", 2),
    Sketcher.Constraint("Horizontal", 3),
    Sketcher.Constraint("Coincident", 0, 2, -1, 1),
    Sketcher.Constraint("DistanceX", 1, 1, 1, 2, 0.4),
    Sketcher.Constraint("DistanceY", 0, 2, 0, 1, 2.2),
])
sketch16.setExpression("Constraints[9]", "Params.sketch16_width")
sketch16.setExpression("Constraints[10]", "Params.sketch16_height")
pad16 = body20.newObject("PartDesign::Pad", "Pad015")
pad16.Profile = sketch16
pad16.setExpression("Length", "Params.pad16_length")
doc.recompute()

boolean13 = body20.newObject("PartDesign::Boolean", "Boolean012")
boolean13.Type = "Cut"
boolean13.addObjects([body19])
body21 = doc.addObject("PartDesign::Body", "Body020")
doc.recompute()

body20.Placement = App.Placement(App.Vector(7.7, 0, 0), App.Rotation(App.Vector(0, 0, 1), 0))
boolean14 = body21.newObject("PartDesign::Boolean", "Boolean013")
boolean14.Type = "Fuse"
boolean14.addObjects([body20])
body22 = doc.addObject("PartDesign::Body", "Body021")
doc.recompute()

mirroring = doc.addObject("Part::Mirroring", "Mirroring")
mirroring.Source = body21
mirroring.Base = App.Vector(7.7, 0, 0)
mirroring.Normal = App.Vector(1, 0, 0)
body22.BaseFeature = mirroring
doc.recompute()
body23 = doc.addObject("PartDesign::Body", "Body022")

# Sketch on XY plane
sketch17 = body23.newObject("Sketcher::SketchObject", "Sketch016")
sketch17.AttachmentSupport = (doc.getObject("XY_Plane022"), [""])
sketch17.MapMode = "FlatFace"
sketch17.addGeometry([
    Part.LineSegment(App.Vector(0, 2.2, 0), App.Vector(0, 0, 0)),
    Part.LineSegment(App.Vector(0, 0, 0), App.Vector(0.8, 0, 0)),
    Part.LineSegment(App.Vector(0.8, 0, 0), App.Vector(0.8, 2.2, 0)),
    Part.LineSegment(App.Vector(0.8, 2.2, 0), App.Vector(0, 2.2, 0)),
], False)
sketch17.addConstraint([
    Sketcher.Constraint("Coincident", 0, 2, 1, 1),
    Sketcher.Constraint("Coincident", 1, 2, 2, 1),
    Sketcher.Constraint("Coincident", 2, 2, 3, 1),
    Sketcher.Constraint("Coincident", 3, 2, 0, 1),
    Sketcher.Constraint("Vertical", 0),
    Sketcher.Constraint("Horizontal", 1),
    Sketcher.Constraint("Vertical", 2),
    Sketcher.Constraint("Horizontal", 3),
    Sketcher.Constraint("Coincident", 0, 2, -1, 1),
    Sketcher.Constraint("DistanceX", 1, 1, 1, 2, 0.8),
    Sketcher.Constraint("DistanceY", 0, 2, 0, 1, 2.2),
])
sketch17.setExpression("Constraints[9]", "Params.sketch17_width")
sketch17.setExpression("Constraints[10]", "Params.sketch17_height")
pad17 = body23.newObject("PartDesign::Pad", "Pad016")
pad17.Profile = sketch17
pad17.setExpression("Length", "Params.pad17_length")
body24 = doc.addObject("PartDesign::Body", "Body023")
doc.recompute()

body23.Placement = App.Placement(App.Vector(0, 0, 2), App.Rotation(App.Vector(0, 1, 0), 45))
boolean15 = body24.newObject("PartDesign::Boolean", "Boolean014")
boolean15.Type = "Fuse"
boolean15.addObjects([body23])
body25 = doc.addObject("PartDesign::Body", "Body024")

# Sketch on XY plane
sketch18 = body25.newObject("Sketcher::SketchObject", "Sketch017")
sketch18.AttachmentSupport = (doc.getObject("XY_Plane024"), [""])
sketch18.MapMode = "FlatFace"
sketch18.addGeometry([
    Part.LineSegment(App.Vector(0, 2.2, 0), App.Vector(0, 0, 0)),
    Part.LineSegment(App.Vector(0, 0, 0), App.Vector(0.4, 0, 0)),
    Part.LineSegment(App.Vector(0.4, 0, 0), App.Vector(0.4, 2.2, 0)),
    Part.LineSegment(App.Vector(0.4, 2.2, 0), App.Vector(0, 2.2, 0)),
], False)
sketch18.addConstraint([
    Sketcher.Constraint("Coincident", 0, 2, 1, 1),
    Sketcher.Constraint("Coincident", 1, 2, 2, 1),
    Sketcher.Constraint("Coincident", 2, 2, 3, 1),
    Sketcher.Constraint("Coincident", 3, 2, 0, 1),
    Sketcher.Constraint("Vertical", 0),
    Sketcher.Constraint("Horizontal", 1),
    Sketcher.Constraint("Vertical", 2),
    Sketcher.Constraint("Horizontal", 3),
    Sketcher.Constraint("Coincident", 0, 2, -1, 1),
    Sketcher.Constraint("DistanceX", 1, 1, 1, 2, 0.4),
    Sketcher.Constraint("DistanceY", 0, 2, 0, 1, 2.2),
])
sketch18.setExpression("Constraints[9]", "Params.sketch18_width")
sketch18.setExpression("Constraints[10]", "Params.sketch18_height")
pad18 = body25.newObject("PartDesign::Pad", "Pad017")
pad18.Profile = sketch18
pad18.setExpression("Length", "Params.pad18_length")
doc.recompute()

boolean16 = body25.newObject("PartDesign::Boolean", "Boolean015")
boolean16.Type = "Cut"
boolean16.addObjects([body24])
body26 = doc.addObject("PartDesign::Body", "Body025")

# Sketch on XY plane
sketch19 = body26.newObject("Sketcher::SketchObject", "Sketch018")
sketch19.AttachmentSupport = (doc.getObject("XY_Plane025"), [""])
sketch19.MapMode = "FlatFace"
sketch19.addGeometry([
    Part.LineSegment(App.Vector(0, 9, 0), App.Vector(0, 0, 0)),
    Part.LineSegment(App.Vector(0, 0, 0), App.Vector(8, 0, 0)),
    Part.LineSegment(App.Vector(8, 0, 0), App.Vector(8, 9, 0)),
    Part.LineSegment(App.Vector(8, 9, 0), App.Vector(0, 9, 0)),
], False)
sketch19.addConstraint([
    Sketcher.Constraint("Coincident", 0, 2, 1, 1),
    Sketcher.Constraint("Coincident", 1, 2, 2, 1),
    Sketcher.Constraint("Coincident", 2, 2, 3, 1),
    Sketcher.Constraint("Coincident", 3, 2, 0, 1),
    Sketcher.Constraint("Vertical", 0),
    Sketcher.Constraint("Horizontal", 1),
    Sketcher.Constraint("Vertical", 2),
    Sketcher.Constraint("Horizontal", 3),
    Sketcher.Constraint("Coincident", 0, 2, -1, 1),
    Sketcher.Constraint("DistanceX", 1, 1, 1, 2, 7.7),
    Sketcher.Constraint("DistanceY", 0, 2, 0, 1, 9.2),
])
sketch19.setExpression("Constraints[9]", "Params.sketch19_width")
sketch19.setExpression("Constraints[10]", "Params.sketch19_height")
pad19 = body26.newObject("PartDesign::Pad", "Pad018")
pad19.Profile = sketch19
pad19.setExpression("Length", "Params.pad19_length")
doc.recompute()

boolean17 = body26.newObject("PartDesign::Boolean", "Boolean016")
boolean17.Type = "Cut"
boolean17.addObjects([body25])
doc.recompute()

boolean18 = body26.newObject("PartDesign::Boolean", "Boolean017")
boolean18.Type = "Cut"
boolean18.addObjects([body22])
doc.recompute()

fillet5 = body26.newObject("PartDesign::Fillet", "Fillet004")
fillet5.Base = (boolean18, edges_at(boolean18, [(0, 4.6, 4), (7.7, 4.6, 4)]))
fillet5.setExpression("Radius", "Params.fillet5_radius")
doc.recompute()

boolean19 = body26.newObject("PartDesign::Boolean", "Boolean018")
boolean19.Type = "Fuse"
boolean19.addObjects([body11])
doc.recompute()

boolean20 = body26.newObject("PartDesign::Boolean", "Boolean019")
boolean20.Type = "Fuse"
boolean20.addObjects([body13])
doc.recompute()

boolean21 = body26.newObject("PartDesign::Boolean", "Boolean020")
boolean21.Type = "Fuse"
boolean21.addObjects([body15])
doc.recompute()

boolean22 = body26.newObject("PartDesign::Boolean", "Boolean021")
boolean22.Type = "Fuse"
boolean22.addObjects([body17])
doc.recompute()

boolean23 = body26.newObject("PartDesign::Boolean", "Boolean022")
boolean23.Type = "Cut"
boolean23.addObjects([body9])
doc.recompute()

boolean24 = body26.newObject("PartDesign::Boolean", "Boolean023")
boolean24.Type = "Cut"
boolean24.addObjects([body])
mirroring.Visibility = False

doc.recompute()
